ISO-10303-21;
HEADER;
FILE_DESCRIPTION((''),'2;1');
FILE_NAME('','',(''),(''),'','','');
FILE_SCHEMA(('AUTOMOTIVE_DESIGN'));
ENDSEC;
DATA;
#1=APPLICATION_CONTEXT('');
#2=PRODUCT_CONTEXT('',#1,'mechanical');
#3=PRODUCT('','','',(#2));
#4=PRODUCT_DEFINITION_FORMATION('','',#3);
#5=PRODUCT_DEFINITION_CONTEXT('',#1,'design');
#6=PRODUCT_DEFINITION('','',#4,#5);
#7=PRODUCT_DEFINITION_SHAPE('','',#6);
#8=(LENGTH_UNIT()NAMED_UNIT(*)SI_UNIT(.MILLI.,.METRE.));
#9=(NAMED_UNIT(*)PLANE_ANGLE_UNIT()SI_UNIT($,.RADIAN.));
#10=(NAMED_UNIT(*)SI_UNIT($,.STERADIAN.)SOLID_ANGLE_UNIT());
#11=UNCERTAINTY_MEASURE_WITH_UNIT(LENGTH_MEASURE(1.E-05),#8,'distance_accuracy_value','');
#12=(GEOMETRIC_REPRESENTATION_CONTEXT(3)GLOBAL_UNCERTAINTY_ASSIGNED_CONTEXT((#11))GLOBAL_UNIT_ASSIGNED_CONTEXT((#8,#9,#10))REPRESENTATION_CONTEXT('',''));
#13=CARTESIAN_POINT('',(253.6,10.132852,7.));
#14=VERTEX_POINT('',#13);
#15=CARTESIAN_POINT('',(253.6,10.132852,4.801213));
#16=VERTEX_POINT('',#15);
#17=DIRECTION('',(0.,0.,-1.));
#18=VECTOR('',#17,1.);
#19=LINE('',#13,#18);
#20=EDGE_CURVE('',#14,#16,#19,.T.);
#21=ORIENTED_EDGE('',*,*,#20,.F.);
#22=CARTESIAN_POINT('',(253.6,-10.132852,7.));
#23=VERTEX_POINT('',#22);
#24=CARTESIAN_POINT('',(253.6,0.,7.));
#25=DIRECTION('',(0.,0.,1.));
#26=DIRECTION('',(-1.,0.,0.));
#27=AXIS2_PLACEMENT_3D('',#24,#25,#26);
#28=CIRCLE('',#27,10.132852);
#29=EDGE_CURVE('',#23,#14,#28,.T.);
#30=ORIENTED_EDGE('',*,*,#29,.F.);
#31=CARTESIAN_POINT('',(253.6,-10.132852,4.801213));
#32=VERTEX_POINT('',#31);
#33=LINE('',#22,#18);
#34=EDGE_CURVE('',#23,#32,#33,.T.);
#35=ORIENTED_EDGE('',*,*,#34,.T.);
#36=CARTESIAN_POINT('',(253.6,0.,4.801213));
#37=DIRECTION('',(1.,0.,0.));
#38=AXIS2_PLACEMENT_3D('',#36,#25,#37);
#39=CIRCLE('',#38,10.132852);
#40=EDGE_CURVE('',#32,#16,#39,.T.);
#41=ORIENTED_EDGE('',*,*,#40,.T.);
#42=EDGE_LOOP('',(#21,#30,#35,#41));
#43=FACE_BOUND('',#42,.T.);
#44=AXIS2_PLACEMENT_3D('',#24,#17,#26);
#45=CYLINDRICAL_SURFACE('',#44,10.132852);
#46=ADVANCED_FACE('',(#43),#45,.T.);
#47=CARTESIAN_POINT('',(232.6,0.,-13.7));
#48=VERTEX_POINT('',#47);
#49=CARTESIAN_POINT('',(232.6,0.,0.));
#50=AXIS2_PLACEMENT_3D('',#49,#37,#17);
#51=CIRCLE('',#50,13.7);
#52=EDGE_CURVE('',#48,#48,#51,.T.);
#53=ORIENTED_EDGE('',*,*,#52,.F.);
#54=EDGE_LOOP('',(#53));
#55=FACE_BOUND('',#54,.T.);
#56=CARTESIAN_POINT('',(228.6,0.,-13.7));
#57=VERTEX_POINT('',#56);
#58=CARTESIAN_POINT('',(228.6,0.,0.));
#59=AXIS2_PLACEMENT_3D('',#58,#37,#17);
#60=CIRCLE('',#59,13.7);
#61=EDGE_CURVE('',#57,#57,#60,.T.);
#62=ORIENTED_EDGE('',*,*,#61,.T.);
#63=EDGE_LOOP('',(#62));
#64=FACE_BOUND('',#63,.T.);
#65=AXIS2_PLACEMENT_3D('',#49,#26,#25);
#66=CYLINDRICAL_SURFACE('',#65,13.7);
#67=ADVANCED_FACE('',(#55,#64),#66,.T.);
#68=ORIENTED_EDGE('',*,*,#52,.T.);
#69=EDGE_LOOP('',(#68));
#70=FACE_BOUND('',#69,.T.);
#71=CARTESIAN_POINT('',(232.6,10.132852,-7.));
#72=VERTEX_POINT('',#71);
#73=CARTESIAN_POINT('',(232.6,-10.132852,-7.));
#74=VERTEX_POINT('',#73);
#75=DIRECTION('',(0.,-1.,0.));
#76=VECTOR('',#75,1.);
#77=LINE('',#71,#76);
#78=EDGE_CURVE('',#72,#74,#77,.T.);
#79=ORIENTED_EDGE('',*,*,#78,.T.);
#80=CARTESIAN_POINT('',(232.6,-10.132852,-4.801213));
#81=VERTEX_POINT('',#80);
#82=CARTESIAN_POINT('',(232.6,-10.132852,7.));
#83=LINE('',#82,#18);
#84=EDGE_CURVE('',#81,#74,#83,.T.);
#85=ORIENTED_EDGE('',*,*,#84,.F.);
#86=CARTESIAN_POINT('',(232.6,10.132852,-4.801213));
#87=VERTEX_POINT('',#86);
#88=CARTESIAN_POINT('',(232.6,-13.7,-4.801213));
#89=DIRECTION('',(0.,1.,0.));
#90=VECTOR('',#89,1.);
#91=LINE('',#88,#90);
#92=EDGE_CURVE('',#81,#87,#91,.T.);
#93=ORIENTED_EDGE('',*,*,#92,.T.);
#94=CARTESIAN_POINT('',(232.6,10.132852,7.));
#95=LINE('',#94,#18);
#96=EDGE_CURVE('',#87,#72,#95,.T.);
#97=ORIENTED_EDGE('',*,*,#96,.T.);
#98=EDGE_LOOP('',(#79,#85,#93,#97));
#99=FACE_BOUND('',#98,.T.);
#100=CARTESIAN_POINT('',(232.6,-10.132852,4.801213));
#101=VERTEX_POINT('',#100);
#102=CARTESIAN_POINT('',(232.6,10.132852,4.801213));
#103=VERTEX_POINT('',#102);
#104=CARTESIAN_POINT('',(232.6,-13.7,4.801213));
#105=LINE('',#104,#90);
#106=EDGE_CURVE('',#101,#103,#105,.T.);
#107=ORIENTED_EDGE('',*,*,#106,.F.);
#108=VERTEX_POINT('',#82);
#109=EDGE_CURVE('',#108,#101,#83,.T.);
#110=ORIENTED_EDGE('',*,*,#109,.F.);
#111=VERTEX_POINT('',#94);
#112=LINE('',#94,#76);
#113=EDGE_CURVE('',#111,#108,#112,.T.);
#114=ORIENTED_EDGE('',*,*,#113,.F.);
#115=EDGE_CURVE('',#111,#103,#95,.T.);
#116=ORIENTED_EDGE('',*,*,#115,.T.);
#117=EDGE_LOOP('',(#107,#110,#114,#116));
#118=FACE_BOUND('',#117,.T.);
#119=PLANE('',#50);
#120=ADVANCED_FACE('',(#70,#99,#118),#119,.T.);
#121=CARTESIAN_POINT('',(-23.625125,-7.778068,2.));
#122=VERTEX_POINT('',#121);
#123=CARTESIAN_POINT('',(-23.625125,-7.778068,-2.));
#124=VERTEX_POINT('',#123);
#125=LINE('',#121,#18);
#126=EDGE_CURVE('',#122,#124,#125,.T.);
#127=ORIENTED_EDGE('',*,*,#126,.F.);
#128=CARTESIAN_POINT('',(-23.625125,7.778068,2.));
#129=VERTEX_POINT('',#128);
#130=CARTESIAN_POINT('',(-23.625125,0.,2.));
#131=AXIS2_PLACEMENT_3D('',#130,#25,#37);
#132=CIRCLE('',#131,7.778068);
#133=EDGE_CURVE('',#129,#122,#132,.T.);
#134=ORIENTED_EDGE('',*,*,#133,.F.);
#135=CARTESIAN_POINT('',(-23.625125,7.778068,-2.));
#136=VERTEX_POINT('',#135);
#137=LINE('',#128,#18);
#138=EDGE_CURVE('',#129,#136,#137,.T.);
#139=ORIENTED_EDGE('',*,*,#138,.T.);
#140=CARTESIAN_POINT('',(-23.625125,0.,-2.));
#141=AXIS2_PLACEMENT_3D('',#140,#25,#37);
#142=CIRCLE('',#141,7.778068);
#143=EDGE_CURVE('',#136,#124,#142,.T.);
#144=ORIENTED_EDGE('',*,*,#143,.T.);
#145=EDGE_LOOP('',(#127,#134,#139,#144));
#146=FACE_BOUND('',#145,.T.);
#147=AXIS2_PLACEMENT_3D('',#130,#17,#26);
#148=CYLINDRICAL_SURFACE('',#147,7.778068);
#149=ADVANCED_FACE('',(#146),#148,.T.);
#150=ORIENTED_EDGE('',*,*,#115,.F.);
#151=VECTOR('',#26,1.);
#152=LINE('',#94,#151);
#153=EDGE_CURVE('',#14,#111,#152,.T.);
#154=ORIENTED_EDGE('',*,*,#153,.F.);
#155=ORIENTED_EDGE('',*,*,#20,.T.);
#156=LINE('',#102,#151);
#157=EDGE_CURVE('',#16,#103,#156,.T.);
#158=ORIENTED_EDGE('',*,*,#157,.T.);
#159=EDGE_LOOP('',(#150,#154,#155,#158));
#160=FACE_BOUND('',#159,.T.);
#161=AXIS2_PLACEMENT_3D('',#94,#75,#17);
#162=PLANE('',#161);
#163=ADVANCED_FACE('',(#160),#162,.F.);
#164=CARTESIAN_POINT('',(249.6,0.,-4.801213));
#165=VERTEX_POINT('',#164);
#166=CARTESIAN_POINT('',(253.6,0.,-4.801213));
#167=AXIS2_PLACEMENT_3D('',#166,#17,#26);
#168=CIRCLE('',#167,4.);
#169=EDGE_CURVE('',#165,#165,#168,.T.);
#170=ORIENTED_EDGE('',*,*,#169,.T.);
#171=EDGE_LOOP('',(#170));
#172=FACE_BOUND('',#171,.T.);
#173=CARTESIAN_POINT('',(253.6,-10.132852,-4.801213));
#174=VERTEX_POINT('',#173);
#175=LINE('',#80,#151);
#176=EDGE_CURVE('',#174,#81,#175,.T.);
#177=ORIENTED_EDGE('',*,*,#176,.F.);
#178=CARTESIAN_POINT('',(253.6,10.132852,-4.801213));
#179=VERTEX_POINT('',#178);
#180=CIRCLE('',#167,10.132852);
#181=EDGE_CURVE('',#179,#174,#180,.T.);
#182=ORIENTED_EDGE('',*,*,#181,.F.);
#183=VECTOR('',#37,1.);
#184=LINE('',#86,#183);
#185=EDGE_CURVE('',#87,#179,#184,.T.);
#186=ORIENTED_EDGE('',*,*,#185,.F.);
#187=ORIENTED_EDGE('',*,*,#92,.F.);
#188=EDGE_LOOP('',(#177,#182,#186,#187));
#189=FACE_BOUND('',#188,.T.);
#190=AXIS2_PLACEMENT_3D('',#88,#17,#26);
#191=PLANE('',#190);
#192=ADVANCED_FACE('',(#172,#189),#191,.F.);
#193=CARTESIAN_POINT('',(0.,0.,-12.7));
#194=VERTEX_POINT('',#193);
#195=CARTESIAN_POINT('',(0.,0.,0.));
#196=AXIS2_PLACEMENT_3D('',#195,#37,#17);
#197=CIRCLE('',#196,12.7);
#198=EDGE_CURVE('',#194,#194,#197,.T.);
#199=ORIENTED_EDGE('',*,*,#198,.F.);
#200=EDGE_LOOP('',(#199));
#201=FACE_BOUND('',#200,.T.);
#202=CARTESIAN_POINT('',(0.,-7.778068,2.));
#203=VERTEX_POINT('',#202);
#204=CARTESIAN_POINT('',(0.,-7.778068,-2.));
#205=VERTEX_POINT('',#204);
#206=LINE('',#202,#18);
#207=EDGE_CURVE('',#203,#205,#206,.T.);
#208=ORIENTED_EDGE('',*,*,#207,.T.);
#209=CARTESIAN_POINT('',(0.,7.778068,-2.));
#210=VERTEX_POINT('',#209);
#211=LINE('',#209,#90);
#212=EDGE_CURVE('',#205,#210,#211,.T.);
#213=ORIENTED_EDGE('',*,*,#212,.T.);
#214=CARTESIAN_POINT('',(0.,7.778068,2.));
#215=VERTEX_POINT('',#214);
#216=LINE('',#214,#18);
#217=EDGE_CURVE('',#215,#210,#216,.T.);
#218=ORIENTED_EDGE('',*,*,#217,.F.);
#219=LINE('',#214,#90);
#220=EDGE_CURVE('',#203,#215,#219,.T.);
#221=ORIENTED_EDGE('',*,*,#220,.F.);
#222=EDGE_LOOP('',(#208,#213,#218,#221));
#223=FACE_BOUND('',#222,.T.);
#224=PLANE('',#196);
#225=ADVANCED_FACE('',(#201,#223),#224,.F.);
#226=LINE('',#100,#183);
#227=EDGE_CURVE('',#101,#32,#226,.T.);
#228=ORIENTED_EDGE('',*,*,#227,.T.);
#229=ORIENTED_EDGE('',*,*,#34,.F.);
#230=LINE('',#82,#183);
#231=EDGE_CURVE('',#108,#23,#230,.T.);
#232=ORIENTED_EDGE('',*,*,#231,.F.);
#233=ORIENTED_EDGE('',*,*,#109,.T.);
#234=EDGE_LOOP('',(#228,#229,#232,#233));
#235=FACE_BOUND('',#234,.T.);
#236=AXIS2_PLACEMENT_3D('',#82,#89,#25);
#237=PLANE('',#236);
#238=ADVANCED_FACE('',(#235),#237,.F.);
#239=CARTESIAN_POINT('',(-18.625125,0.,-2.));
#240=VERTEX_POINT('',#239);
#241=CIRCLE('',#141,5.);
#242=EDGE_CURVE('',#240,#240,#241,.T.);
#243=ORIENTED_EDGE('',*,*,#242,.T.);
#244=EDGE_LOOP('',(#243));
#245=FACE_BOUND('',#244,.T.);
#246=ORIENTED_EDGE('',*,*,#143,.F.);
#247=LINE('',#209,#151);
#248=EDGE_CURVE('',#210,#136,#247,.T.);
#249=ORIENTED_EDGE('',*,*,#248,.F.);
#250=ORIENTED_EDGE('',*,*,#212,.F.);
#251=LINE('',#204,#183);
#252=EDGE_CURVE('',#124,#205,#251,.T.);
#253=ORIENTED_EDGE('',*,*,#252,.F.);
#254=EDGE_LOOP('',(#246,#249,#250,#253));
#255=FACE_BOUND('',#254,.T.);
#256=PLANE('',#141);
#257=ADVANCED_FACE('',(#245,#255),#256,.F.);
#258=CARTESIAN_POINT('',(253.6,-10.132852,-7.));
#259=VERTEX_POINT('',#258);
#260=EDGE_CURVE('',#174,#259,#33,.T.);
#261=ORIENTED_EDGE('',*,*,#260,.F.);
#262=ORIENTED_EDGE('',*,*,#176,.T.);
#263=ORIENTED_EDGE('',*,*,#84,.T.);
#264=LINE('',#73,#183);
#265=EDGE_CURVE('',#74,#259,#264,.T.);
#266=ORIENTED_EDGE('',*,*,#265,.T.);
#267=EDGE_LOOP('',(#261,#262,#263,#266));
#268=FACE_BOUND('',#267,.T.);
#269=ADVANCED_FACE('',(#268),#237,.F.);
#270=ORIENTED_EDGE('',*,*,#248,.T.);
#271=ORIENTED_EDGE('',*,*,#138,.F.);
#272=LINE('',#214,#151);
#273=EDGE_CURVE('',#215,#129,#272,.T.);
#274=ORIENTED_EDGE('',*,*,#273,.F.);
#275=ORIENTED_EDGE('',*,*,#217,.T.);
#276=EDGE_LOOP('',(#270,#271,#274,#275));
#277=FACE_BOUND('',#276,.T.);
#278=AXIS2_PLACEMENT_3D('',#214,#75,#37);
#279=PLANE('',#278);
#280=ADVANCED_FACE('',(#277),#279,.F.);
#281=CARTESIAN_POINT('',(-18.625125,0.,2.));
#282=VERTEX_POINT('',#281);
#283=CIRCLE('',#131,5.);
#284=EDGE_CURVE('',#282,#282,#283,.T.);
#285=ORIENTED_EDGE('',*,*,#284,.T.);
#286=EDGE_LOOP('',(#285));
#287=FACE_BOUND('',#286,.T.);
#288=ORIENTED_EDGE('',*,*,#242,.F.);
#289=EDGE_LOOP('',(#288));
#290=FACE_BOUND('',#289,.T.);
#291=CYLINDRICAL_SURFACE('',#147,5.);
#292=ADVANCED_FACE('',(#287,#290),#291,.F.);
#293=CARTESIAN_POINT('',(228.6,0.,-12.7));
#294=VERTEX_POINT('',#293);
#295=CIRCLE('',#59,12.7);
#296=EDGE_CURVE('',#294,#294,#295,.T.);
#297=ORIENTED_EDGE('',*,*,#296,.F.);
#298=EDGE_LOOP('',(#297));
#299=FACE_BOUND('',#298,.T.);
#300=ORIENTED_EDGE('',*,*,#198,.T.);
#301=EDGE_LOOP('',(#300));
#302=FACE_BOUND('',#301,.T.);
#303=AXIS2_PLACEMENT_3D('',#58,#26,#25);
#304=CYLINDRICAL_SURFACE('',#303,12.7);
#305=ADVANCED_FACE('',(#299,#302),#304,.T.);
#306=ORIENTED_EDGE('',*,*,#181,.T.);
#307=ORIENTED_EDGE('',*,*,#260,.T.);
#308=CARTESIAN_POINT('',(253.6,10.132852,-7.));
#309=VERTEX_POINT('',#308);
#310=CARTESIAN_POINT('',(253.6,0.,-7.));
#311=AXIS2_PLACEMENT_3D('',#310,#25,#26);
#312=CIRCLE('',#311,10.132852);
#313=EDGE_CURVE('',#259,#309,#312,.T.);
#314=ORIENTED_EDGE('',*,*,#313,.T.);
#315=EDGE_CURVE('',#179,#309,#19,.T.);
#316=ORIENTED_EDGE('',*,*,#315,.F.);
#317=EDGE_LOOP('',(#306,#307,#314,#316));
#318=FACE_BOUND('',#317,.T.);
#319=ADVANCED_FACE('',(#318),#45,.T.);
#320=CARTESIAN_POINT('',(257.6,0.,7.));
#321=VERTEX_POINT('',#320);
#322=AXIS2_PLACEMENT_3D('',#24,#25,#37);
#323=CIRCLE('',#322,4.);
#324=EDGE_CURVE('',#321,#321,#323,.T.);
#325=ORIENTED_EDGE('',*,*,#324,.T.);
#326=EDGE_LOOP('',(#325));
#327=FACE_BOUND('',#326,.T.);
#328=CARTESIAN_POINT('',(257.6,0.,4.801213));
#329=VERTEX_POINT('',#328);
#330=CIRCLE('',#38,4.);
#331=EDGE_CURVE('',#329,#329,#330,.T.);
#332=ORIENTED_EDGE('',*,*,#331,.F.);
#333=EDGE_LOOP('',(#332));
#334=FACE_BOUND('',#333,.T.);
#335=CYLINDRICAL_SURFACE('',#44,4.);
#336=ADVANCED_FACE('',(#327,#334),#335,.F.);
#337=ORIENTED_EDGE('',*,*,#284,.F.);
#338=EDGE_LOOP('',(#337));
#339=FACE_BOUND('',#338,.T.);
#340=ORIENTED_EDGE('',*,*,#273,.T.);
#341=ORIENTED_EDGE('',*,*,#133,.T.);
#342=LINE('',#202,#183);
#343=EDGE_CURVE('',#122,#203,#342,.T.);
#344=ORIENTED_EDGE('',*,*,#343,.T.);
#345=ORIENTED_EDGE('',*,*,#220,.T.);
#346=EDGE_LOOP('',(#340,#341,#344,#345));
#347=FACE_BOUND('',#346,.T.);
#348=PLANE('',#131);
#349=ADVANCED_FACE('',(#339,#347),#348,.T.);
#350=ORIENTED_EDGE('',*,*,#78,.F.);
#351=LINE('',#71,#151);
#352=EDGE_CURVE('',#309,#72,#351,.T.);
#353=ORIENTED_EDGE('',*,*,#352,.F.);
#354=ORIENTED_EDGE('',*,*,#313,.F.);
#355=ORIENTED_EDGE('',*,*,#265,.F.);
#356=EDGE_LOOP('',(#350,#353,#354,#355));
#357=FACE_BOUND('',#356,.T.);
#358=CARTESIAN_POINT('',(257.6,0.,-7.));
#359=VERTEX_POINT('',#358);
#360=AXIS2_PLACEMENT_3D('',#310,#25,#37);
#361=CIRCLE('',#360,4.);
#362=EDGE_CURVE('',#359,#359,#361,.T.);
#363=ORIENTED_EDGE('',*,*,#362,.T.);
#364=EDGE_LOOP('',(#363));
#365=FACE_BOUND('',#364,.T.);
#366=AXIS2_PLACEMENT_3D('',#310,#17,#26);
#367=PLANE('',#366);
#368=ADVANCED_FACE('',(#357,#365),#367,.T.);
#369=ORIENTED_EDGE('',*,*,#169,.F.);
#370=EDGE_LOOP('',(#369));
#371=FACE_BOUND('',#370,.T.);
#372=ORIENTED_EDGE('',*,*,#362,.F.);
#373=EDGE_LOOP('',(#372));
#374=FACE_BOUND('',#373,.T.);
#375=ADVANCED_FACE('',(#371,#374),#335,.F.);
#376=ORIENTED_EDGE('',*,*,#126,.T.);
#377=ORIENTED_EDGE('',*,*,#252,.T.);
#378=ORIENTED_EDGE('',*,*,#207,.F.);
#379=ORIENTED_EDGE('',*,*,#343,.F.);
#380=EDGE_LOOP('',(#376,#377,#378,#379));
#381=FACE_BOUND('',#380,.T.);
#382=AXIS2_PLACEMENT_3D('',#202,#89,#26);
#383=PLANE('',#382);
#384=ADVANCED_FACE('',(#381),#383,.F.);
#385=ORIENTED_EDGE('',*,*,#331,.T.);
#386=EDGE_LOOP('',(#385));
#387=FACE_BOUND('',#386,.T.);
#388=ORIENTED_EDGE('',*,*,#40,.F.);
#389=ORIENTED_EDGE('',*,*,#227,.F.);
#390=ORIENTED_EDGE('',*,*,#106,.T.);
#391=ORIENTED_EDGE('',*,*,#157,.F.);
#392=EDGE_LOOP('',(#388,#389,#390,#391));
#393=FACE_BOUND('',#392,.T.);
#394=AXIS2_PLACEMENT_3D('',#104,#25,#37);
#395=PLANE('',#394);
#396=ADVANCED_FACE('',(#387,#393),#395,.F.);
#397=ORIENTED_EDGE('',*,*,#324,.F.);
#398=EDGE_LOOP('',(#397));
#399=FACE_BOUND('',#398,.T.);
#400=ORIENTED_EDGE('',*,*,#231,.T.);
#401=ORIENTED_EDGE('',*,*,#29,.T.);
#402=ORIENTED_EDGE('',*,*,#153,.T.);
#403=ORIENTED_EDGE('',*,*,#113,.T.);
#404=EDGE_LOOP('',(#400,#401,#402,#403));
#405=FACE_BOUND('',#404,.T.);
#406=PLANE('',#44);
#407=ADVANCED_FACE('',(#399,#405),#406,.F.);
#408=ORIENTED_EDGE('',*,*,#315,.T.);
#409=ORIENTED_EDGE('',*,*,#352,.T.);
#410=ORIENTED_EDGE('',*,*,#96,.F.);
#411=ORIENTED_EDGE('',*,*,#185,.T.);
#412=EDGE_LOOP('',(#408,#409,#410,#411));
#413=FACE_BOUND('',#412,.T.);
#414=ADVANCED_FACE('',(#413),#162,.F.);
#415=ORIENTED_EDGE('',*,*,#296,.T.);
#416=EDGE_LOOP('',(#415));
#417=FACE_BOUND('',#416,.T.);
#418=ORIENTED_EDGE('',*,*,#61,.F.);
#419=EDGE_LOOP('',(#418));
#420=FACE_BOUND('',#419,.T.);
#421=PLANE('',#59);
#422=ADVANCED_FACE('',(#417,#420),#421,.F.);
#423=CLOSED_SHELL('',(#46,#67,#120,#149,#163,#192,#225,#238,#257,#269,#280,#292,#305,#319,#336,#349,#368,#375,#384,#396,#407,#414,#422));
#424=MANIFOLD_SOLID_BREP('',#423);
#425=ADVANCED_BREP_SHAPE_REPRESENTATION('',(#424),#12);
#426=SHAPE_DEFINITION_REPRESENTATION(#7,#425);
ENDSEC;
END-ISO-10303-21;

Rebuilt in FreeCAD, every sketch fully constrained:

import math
import FreeCAD as App
import Part
import Sketcher
from FreeCAD import Vector
Q = App.Units.Quantity


def add_polygon(sketch, points):
    """Adds a closed chain of lines whose ends are joined by coincident constraints."""
    first, n = sketch.GeometryCount, len(points)
    for a, b in zip(points, points[1:] + points[:1]):
        sketch.addGeometry(Part.LineSegment(App.Vector(*a, 0), App.Vector(*b, 0)), False)
    for i in range(n):
        sketch.addConstraint(Sketcher.Constraint("Coincident", first + i, 2, first + (i + 1) % n, 1))

doc = App.newDocument("Part")
body = doc.addObject("PartDesign::Body", "Body")

# Sketch on YZ plane
sketch1 = doc.addObject("Sketcher::SketchObject", "Sketch")
body.addObject(sketch1)
sketch1.AttachmentSupport = (doc.YZ_Plane, [""])
sketch1.MapMode = "FlatFace"
sketch1.addGeometry(Part.Circle(Vector(0, 0, 0), Vector(0, 0, 1), 13), False)
sketch1.addConstraint([
    Sketcher.Constraint("Coincident", 0, 3, -1, 1),
    Sketcher.Constraint("Diameter", 0, Q("25.4 mm")),
])
pad1 = doc.addObject("PartDesign::Pad", "Pad")
body.addObject(pad1)
pad1.Profile = sketch1
pad1.Length = 228.6

# Sketch on XY plane
sketch2 = doc.addObject("Sketcher::SketchObject", "Sketch001")
body.addObject(sketch2)
sketch2.AttachmentSupport = (doc.XY_Plane, [""])
sketch2.MapMode = "FlatFace"
sketch2.addGeometry([
    Part.LineSegment(Vector(0, 8, 0), Vector(-24, 8, 0)),  # 0
    Part.ArcOfCircle(Part.Circle(Vector(-24, 0, 0), Vector(0, 0, 1), 8), math.radians(90), math.radians(270)),  # 1
    Part.LineSegment(Vector(-24, -8, 0), Vector(0, -8, 0)),  # 2
    Part.LineSegment(Vector(0, -8, 0), Vector(0, 8, 0)),  # 3
    Part.Circle(Vector(-24, 0, 0), Vector(0, 0, 1), 5),  # 4
], False)
sketch2.addConstraint([
    Sketcher.Constraint("Tangent", 0, 2, 1, 1),
    Sketcher.Constraint("Tangent", 1, 2, 2, 1),
    Sketcher.Constraint("Coincident", 2, 2, 3, 1),
    Sketcher.Constraint("Coincident", 3, 2, 0, 1),
    Sketcher.Constraint("Horizontal", 0),
    Sketcher.Constraint("Horizontal", 2),
    Sketcher.Constraint("Vertical", 3),
    Sketcher.Constraint("Coincident", 4, 3, 1, 3),
    Sketcher.Constraint("Symmetric", 2, 2, 3, 2, -1, 1),
    Sketcher.Constraint("Diameter", 4, Q("10 mm")),
    Sketcher.Constraint("Radius", 1, Q("7.778068 mm")),
    Sketcher.Constraint("DistanceX", 0, 2, 0, 1, Q("23.625125 mm")),
])
pad2 = doc.addObject("PartDesign::Pad", "Pad001")
body.addObject(pad2)
pad2.Profile = sketch2
pad2.Length = 4
pad2.Midplane = True

# Sketch on YZ plane
sketch3 = doc.addObject("Sketcher::SketchObject", "Sketch002")
body.addObject(sketch3)
sketch3.AttachmentSupport = (doc.YZ_Plane, [""])
sketch3.MapMode = "FlatFace"
sketch3.AttachmentOffset = App.Placement(Vector(0, 0, 228.6), App.Rotation())
sketch3.addGeometry(Part.Circle(Vector(0, 0, 0), Vector(0, 0, 1), 14), False)
sketch3.addConstraint([
    Sketcher.Constraint("Coincident", 0, 3, -1, 1),
    Sketcher.Constraint("Diameter", 0, Q("27.4 mm")),
])
pad3 = doc.addObject("PartDesign::Pad", "Pad002")
body.addObject(pad3)
pad3.Profile = sketch3
pad3.Length = 4

# Sketch on XY plane
sketch4 = doc.addObject("Sketcher::SketchObject", "Sketch003")
body.addObject(sketch4)
sketch4.AttachmentSupport = (doc.XY_Plane, [""])
sketch4.MapMode = "FlatFace"
sketch4.addGeometry([
    Part.LineSegment(Vector(253.6, 10.1, 0), Vector(232.6, 10.1, 0)),  # 0
    Part.LineSegment(Vector(232.6, 10.1, 0), Vector(232.6, -10.1, 0)),  # 1
    Part.LineSegment(Vector(232.6, -10.1, 0), Vector(253.6, -10.1, 0)),  # 2
    Part.ArcOfCircle(Part.Circle(Vector(253.6, 0, 0), Vector(0, 0, 1), 10.1), math.radians(-90), math.radians(90)),  # 3
    Part.Circle(Vector(253.6, 0, 0), Vector(0, 0, 1), 4),  # 4
], False)
sketch4.addConstraint([
    Sketcher.Constraint("Coincident", 0, 2, 1, 1),
    Sketcher.Constraint("Coincident", 1, 2, 2, 1),
    Sketcher.Constraint("Tangent", 2, 2, 3, 1),
    Sketcher.Constraint("Tangent", 3, 2, 0, 1),
    Sketcher.Constraint("Horizontal", 0),
    Sketcher.Constraint("Vertical", 1),
    Sketcher.Constraint("Horizontal", 2),
    Sketcher.Constraint("Coincident", 4, 3, 3, 3),
    Sketcher.Constraint("PointOnObject", 3, 3, -1),
    Sketcher.Constraint("Diameter", 4, Q("8 mm")),
    Sketcher.Constraint("DistanceX", 0, 2, 0, 1, Q("21 mm")),
    Sketcher.Constraint("DistanceX", -1, 1, 3, 3, Q("253.6 mm")),
    Sketcher.Constraint("Radius", 3, Q("10.132852 mm")),
])
pad4 = doc.addObject("PartDesign::Pad", "Pad003")
body.addObject(pad4)
pad4.Profile = sketch4
pad4.Length = 14
pad4.Midplane = True

# Sketch on XZ plane
sketch5 = doc.addObject("Sketcher::SketchObject", "Sketch004")
body.addObject(sketch5)
sketch5.AttachmentSupport = (doc.XZ_Plane, [""])
sketch5.MapMode = "FlatFace"
add_polygon(sketch5, [(233, -5), (233, 5), (360, 5), (360, -5)])  # lines 0-3
sketch5.addConstraint([
    Sketcher.Constraint("Vertical", 0),
    Sketcher.Constraint("Horizontal", 1),
    Sketcher.Constraint("Vertical", 2),
    Sketcher.Constraint("Horizontal", 3),
    Sketcher.Constraint("DistanceX", -1, 1, 0, 2, Q("232.6 mm")),
    Sketcher.Constraint("DistanceX", 1, 1, 1, 2, Q("127.127972 mm")),
    Sketcher.Constraint("DistanceY", 0, 1, 0, 2, Q("9.602426 mm")),
    Sketcher.Constraint("DistanceY", -1, 1, 0, 2, Q("4.801213 mm")),
])
pocket1 = doc.addObject("PartDesign::Pocket", "Pocket")
body.addObject(pocket1)
pocket1.Profile = sketch5
pocket1.Type = "ThroughAll"
pocket1.Midplane = True

doc.recompute()
